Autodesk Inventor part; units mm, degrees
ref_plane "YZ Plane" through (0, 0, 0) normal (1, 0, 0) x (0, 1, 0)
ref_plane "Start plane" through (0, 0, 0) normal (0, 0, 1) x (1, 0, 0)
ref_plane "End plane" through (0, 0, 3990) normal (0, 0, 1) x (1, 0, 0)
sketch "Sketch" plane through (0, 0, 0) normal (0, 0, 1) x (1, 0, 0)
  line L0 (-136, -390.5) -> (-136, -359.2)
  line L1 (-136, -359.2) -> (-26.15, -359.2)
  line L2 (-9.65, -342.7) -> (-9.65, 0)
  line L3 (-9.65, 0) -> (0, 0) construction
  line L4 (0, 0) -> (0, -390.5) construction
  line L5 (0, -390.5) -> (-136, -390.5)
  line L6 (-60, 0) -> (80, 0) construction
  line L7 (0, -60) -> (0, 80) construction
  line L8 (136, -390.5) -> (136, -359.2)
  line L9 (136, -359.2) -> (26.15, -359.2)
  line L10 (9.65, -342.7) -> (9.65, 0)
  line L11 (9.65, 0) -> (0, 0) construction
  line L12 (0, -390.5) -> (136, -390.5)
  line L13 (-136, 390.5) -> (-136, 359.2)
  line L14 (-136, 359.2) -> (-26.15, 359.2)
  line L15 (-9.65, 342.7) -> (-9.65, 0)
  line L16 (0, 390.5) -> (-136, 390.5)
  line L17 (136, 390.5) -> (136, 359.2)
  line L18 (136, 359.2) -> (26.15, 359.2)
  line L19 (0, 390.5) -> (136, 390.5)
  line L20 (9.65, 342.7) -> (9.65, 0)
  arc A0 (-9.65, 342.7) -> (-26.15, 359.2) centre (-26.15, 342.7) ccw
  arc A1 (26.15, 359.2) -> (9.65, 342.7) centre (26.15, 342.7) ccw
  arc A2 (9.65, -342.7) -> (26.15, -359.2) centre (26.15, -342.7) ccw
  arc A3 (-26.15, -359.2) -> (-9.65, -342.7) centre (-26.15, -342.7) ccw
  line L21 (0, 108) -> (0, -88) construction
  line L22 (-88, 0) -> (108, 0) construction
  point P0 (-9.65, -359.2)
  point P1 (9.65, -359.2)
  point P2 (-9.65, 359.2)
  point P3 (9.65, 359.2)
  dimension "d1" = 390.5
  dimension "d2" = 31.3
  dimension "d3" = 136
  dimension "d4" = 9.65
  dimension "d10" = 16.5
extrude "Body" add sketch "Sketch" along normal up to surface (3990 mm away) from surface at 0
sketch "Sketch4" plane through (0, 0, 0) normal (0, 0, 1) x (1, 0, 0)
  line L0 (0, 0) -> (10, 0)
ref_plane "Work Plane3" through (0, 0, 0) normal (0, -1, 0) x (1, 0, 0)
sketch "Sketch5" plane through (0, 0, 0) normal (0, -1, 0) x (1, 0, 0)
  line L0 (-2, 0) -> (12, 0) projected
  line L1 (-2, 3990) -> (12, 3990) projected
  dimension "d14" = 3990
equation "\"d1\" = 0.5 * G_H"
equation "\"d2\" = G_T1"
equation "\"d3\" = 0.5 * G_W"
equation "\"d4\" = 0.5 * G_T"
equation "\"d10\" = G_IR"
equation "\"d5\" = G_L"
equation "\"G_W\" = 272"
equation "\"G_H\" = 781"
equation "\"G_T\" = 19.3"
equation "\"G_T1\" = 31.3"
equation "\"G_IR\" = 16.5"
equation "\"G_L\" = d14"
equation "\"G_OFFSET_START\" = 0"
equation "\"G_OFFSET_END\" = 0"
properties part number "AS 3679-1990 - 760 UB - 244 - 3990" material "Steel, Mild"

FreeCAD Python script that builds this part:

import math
import FreeCAD as App
import Part
import Sketcher
from FreeCAD import Vector

doc = App.newDocument("Part")
body = doc.addObject("PartDesign::Body", "Body")

# Sketch on XY plane
sketch1 = body.newObject("Sketcher::SketchObject", "Sketch")
sketch1.AttachmentSupport = (doc.getObject("XY_Plane"), [""])
sketch1.MapMode = "FlatFace"
sketch1.addGeometry([
    Part.LineSegment(Vector(-136, -359, 0), Vector(-136, -390, 0)),  # 0
    Part.LineSegment(Vector(-136, -390, 0), Vector(136, -390, 0)),  # 1
    Part.LineSegment(Vector(136, -390, 0), Vector(136, -359, 0)),  # 2
    Part.LineSegment(Vector(136, -359, 0), Vector(26, -359, 0)),  # 3
    Part.ArcOfCircle(Part.Circle(Vector(26, -343, 0), Vector(0, 0, 1), 16), math.radians(180), math.radians(270)),  # 4
    Part.LineSegment(Vector(10, -343, 0), Vector(10, 343, 0)),  # 5
    Part.ArcOfCircle(Part.Circle(Vector(26, 343, 0), Vector(0, 0, 1), 16), math.radians(90), math.radians(180)),  # 6
    Part.LineSegment(Vector(26, 359, 0), Vector(136, 359, 0)),  # 7
    Part.LineSegment(Vector(136, 359, 0), Vector(136, 390, 0)),  # 8
    Part.LineSegment(Vector(136, 390, 0), Vector(-136, 390, 0)),  # 9
    Part.LineSegment(Vector(-136, 390, 0), Vector(-136, 359, 0)),  # 10
    Part.LineSegment(Vector(-136, 359, 0), Vector(-26, 359, 0)),  # 11
    Part.ArcOfCircle(Part.Circle(Vector(-26, 343, 0), Vector(0, 0, 1), 16), math.radians(0), math.radians(90)),  # 12
    Part.LineSegment(Vector(-10, 343, 0), Vector(-10, -343, 0)),  # 13
    Part.ArcOfCircle(Part.Circle(Vector(-26, -343, 0), Vector(0, 0, 1), 16), math.radians(-90), math.radians(0)),  # 14
    Part.LineSegment(Vector(-26, -359, 0), Vector(-136, -359, 0)),  # 15
], False)
sketch1.addConstraint([
    Sketcher.Constraint("Coincident", 0, 2, 1, 1),
    Sketcher.Constraint("Coincident", 1, 2, 2, 1),
    Sketcher.Constraint("Coincident", 2, 2, 3, 1),
    Sketcher.Constraint("Tangent", 3, 2, 4, 2),
    Sketcher.Constraint("Tangent", 4, 1, 5, 1),
    Sketcher.Constraint("Tangent", 5, 2, 6, 2),
    Sketcher.Constraint("Tangent", 6, 1, 7, 1),
    Sketcher.Constraint("Coincident", 7, 2, 8, 1),
    Sketcher.Constraint("Coincident", 8, 2, 9, 1),
    Sketcher.Constraint("Coincident", 9, 2, 10, 1),
    Sketcher.Constraint("Coincident", 10, 2, 11, 1),
    Sketcher.Constraint("Tangent", 11, 2, 12, 2),
    Sketcher.Constraint("Tangent", 12, 1, 13, 1),
    Sketcher.Constraint("Tangent", 13, 2, 14, 2),
    Sketcher.Constraint("Tangent", 14, 1, 15, 1),
    Sketcher.Constraint("Coincident", 15, 2, 0, 1),
    Sketcher.Constraint("Vertical", 0),
    Sketcher.Constraint("Horizontal", 1),
    Sketcher.Constraint("Vertical", 2),
    Sketcher.Constraint("Horizontal", 3),
    Sketcher.Constraint("Vertical", 5),
    Sketcher.Constraint("Horizontal", 7),
    Sketcher.Constraint("Vertical", 8),
    Sketcher.Constraint("Horizontal", 9),
    Sketcher.Constraint("Vertical", 10),
    Sketcher.Constraint("Horizontal", 11),
    Sketcher.Constraint("Vertical", 13),
    Sketcher.Constraint("Horizontal", 15),
    Sketcher.Constraint("Equal", 4, 6),
    Sketcher.Constraint("Equal", 6, 12),
    Sketcher.Constraint("Equal", 12, 14),
    Sketcher.Constraint("Symmetric", 4, 3, 12, 3, -1, 1),
    Sketcher.Constraint("Symmetric", 0, 2, 8, 2, -1, 1),
    Sketcher.Constraint("Symmetric", 7, 2, 10, 2, -2),
    Sketcher.Constraint("Symmetric", 2, 2, 15, 2, -2),
    Sketcher.Constraint("Radius", 4, 16.5),
    Sketcher.Constraint("DistanceY", 0, 2, 0, 1, 31.3),
    Sketcher.Constraint("DistanceX", 0, 2, -1, 1, 136.0),
    Sketcher.Constraint("DistanceY", 0, 2, -1, 1, 390.5),
    Sketcher.Constraint("DistanceX", -1, 1, 4, 1, 9.65),
])
pad1 = body.newObject("PartDesign::Pad", "Pad")
pad1.Profile = sketch1
pad1.Length = 3990

doc.recompute()
